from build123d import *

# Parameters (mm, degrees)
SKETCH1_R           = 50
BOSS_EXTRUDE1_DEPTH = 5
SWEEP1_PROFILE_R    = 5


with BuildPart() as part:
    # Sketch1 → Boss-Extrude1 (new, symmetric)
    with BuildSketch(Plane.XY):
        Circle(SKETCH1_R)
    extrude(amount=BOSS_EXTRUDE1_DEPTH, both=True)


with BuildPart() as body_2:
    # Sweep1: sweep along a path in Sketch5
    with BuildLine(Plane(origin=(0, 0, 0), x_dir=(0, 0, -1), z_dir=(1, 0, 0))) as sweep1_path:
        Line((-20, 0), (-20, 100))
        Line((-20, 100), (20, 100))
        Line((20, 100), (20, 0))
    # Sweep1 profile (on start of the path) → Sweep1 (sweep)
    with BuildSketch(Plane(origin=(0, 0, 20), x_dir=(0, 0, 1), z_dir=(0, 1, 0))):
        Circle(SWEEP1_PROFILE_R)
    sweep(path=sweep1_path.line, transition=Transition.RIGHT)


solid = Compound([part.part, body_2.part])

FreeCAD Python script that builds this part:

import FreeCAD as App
import Part
import Sketcher
Q = App.Units.Quantity

doc = App.newDocument("Part")
body = doc.addObject("PartDesign::Body", "Body")

sketch1 = body.newObject("Sketcher::SketchObject", "Sketch")
sketch1.AttachmentSupport = (doc.getObject("XY_Plane"), [""])
sketch1.MapMode = "FlatFace"
sketch1.addGeometry(Part.Circle(App.Vector(0, 0, 0), App.Vector(0, 0, 1), 50), False)
sketch1.addConstraint(Sketcher.Constraint("Coincident", 0, 3, -1, 1))
sketch1.addConstraint(Sketcher.Constraint("Diameter", 0, Q("100 mm")))
pad1 = body.newObject("PartDesign::Pad", "Pad")
pad1.Profile = sketch1
pad1.Length = 10
pad1.Midplane = True
body2 = doc.addObject("PartDesign::Body", "Body001")

sketch2 = body2.newObject("Sketcher::SketchObject", "Sketch001")
sketch2.AttachmentSupport = (doc.getObject("XZ_Plane001"), [""])
sketch2.MapMode = "FlatFace"
sketch2.addGeometry(Part.Circle(App.Vector(0, 20, 0), App.Vector(0, 0, 1), 5), False)
sketch2.addConstraint(Sketcher.Constraint("PointOnObject", 0, 3, -2))
sketch2.addConstraint(Sketcher.Constraint("Diameter", 0, Q("10 mm")))
sketch2.addConstraint(Sketcher.Constraint("DistanceY", -1, 1, 0, 3, Q("20 mm")))

sketch3 = body2.newObject("Sketcher::SketchObject", "Sketch002")
sketch3.AttachmentSupport = (doc.getObject("YZ_Plane001"), [""])
sketch3.MapMode = "FlatFace"
sketch3.addGeometry(Part.LineSegment(App.Vector(0, 20, 0), App.Vector(100, 20, 0)), False)
sketch3.addGeometry(Part.LineSegment(App.Vector(100, 20, 0), App.Vector(100, -20, 0)), False)
sketch3.addGeometry(Part.LineSegment(App.Vector(100, -20, 0), App.Vector(0, -20, 0)), False)
sketch3.addConstraint(Sketcher.Constraint("Coincident", 0, 2, 1, 1))
sketch3.addConstraint(Sketcher.Constraint("Coincident", 1, 2, 2, 1))
sketch3.addConstraint(Sketcher.Constraint("Horizontal", 0))
sketch3.addConstraint(Sketcher.Constraint("Vertical", 1))
sketch3.addConstraint(Sketcher.Constraint("Horizontal", 2))
sketch3.addConstraint(Sketcher.Constraint("Symmetric", 0, 1, 2, 2, -1, 1))
sketch3.addConstraint(Sketcher.Constraint("PointOnObject", 0, 1, -2))
sketch3.addConstraint(Sketcher.Constraint("DistanceX", 0, 1, 0, 2, Q("100 mm")))
sketch3.addConstraint(Sketcher.Constraint("DistanceY", 1, 2, 1, 1, Q("40 mm")))
doc.recompute()

additivepipe = body2.newObject("PartDesign::AdditivePipe", "AdditivePipe")
additivepipe.Profile = sketch2
additivepipe.Spine = (sketch3, ["Edge1", "Edge2", "Edge3"])
additivepipe.Transition = "Right corner"

doc.recompute()
